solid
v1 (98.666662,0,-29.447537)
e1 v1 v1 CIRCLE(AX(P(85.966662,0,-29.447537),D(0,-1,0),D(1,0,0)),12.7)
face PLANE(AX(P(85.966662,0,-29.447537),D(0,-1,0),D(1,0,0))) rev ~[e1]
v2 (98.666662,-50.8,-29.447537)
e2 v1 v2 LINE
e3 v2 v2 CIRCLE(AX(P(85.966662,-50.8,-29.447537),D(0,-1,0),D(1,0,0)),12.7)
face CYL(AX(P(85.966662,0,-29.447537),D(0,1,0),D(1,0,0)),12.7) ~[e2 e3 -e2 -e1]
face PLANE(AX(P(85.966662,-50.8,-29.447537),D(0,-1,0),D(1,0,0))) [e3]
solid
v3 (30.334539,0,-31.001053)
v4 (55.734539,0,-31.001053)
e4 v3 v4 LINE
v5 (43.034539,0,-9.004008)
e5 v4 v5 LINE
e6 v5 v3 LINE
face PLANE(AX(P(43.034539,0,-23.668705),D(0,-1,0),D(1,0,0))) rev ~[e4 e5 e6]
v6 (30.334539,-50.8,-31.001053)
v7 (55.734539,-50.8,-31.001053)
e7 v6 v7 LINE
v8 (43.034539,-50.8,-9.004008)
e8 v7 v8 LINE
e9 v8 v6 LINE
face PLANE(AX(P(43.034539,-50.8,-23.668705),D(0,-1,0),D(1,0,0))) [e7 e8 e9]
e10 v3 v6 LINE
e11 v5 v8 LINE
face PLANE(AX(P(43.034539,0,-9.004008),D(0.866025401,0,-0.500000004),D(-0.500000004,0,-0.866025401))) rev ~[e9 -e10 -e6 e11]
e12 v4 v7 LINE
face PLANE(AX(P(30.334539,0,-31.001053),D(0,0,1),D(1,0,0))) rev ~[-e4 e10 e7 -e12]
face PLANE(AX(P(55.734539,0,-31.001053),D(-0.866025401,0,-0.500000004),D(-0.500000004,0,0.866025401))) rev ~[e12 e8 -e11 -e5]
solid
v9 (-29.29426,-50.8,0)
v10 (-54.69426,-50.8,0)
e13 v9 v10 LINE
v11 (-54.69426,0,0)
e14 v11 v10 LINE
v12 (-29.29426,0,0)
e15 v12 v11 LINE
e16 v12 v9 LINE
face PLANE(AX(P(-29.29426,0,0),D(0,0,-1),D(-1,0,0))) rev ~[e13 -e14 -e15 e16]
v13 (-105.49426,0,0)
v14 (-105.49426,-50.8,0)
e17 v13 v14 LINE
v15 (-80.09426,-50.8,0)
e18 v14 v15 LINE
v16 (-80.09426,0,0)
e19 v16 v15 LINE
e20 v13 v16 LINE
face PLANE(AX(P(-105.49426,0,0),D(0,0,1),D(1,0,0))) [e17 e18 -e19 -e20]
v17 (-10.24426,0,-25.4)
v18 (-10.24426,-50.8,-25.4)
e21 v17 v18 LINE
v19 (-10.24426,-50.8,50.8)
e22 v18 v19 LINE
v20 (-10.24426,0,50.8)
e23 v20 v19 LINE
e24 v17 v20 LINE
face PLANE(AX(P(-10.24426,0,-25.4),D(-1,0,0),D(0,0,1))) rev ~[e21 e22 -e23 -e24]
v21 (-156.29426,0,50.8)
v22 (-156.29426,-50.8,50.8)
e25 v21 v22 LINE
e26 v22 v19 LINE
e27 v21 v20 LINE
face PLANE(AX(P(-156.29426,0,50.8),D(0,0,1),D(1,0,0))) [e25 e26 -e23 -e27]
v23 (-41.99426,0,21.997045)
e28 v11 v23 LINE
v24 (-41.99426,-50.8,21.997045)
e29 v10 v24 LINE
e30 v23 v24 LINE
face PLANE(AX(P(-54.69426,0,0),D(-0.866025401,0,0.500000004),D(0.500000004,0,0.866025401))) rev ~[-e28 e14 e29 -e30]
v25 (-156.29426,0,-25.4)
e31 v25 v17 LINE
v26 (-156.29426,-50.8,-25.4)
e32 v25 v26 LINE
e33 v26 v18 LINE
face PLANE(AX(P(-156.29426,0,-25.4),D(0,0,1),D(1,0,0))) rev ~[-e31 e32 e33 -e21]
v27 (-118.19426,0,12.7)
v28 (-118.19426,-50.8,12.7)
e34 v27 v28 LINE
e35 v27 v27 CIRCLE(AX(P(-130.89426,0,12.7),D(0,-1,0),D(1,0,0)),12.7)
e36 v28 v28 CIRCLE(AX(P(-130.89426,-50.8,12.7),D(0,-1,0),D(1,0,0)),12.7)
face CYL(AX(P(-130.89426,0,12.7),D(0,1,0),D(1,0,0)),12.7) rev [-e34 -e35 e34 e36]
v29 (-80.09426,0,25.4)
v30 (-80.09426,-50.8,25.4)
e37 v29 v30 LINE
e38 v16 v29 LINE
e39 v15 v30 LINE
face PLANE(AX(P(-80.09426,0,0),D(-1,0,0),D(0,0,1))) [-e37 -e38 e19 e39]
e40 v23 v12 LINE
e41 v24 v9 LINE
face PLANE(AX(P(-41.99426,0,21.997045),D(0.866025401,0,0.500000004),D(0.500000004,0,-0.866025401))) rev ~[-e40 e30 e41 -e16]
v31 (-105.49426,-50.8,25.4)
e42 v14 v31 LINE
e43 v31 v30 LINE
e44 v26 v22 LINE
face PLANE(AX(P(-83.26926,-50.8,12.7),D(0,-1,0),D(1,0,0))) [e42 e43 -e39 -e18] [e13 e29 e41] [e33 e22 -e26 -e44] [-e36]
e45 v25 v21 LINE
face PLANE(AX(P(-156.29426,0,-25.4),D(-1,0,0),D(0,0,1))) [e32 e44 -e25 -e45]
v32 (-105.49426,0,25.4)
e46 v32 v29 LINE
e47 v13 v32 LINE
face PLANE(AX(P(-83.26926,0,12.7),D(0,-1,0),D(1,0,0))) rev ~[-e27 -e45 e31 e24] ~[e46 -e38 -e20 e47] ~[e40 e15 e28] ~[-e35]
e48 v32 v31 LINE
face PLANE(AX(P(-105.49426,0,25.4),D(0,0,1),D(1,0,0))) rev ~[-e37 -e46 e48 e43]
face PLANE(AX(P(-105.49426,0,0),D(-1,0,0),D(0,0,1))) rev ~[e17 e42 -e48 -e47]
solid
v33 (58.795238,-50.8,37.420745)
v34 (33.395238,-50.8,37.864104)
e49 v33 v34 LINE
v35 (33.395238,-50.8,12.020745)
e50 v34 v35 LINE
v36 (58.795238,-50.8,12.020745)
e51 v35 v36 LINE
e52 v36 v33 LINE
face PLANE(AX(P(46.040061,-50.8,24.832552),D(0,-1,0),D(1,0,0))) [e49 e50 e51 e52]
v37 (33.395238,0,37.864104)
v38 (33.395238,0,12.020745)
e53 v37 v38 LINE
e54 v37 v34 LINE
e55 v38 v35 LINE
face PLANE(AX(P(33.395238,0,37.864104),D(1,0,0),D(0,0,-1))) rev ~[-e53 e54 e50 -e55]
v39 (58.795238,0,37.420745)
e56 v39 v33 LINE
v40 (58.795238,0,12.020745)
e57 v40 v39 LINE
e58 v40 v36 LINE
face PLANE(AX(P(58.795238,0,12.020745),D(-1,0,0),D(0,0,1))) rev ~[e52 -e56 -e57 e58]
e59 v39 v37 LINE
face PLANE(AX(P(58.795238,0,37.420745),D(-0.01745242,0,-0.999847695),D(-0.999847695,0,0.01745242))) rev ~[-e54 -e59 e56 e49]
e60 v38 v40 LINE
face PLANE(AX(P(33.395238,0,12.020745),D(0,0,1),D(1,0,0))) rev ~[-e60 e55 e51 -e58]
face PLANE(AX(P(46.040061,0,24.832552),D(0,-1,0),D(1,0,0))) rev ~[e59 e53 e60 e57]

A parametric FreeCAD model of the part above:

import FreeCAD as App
import Part
import Sketcher
from FreeCAD import Vector
Q = App.Units.Quantity

doc = App.newDocument("Part")
body = doc.addObject("PartDesign::Body", "Body")
body.AllowCompound = True

sketch1 = body.newObject("Sketcher::SketchObject", "Sketch")
sketch1.AttachmentSupport = (doc.getObject("XZ_Plane"), [""])
sketch1.MapMode = "FlatFace"
sketch1.addGeometry([
    Part.LineSegment(Vector(-156, 51, 0), Vector(-156, -25, 0)),
    Part.LineSegment(Vector(-156, -25, 0), Vector(-10, -25, 0)),
    Part.LineSegment(Vector(-10, -25, 0), Vector(-10, 51, 0)),
    Part.LineSegment(Vector(-10, 51, 0), Vector(-156, 51, 0)),
    Part.LineSegment(Vector(-29, 0, 0), Vector(-55, 0, 0)),
    Part.LineSegment(Vector(-55, 0, 0), Vector(-42, 22, 0)),
    Part.LineSegment(Vector(-42, 22, 0), Vector(-29, 0, 0)),
    Part.Circle(Vector(-131, 13, 0), Vector(0, 0, 1), 13),
    Part.LineSegment(Vector(-80, 0, 0), Vector(-105, 0, 0)),
    Part.LineSegment(Vector(-105, 0, 0), Vector(-105, 25, 0)),
    Part.LineSegment(Vector(-105, 25, 0), Vector(-80, 25, 0)),
    Part.LineSegment(Vector(-80, 25, 0), Vector(-80, 0, 0)),
    Part.LineSegment(Vector(59, 37, 0), Vector(33, 38, 0)),
    Part.LineSegment(Vector(33, 38, 0), Vector(33, 12, 0)),
    Part.LineSegment(Vector(33, 12, 0), Vector(59, 12, 0)),
    Part.LineSegment(Vector(59, 12, 0), Vector(59, 37, 0)),
    Part.LineSegment(Vector(56, -31, 0), Vector(43, -9, 0)),
    Part.LineSegment(Vector(43, -9, 0), Vector(30, -31, 0)),
    Part.LineSegment(Vector(30, -31, 0), Vector(56, -31, 0)),
    Part.Circle(Vector(86, -29, 0), Vector(0, 0, 1), 13),
], False)
sketch1.addConstraint([
    Sketcher.Constraint("Coincident", 0, 2, 1, 1),
    Sketcher.Constraint("Coincident", 1, 2, 2, 1),
    Sketcher.Constraint("Coincident", 2, 2, 3, 1),
    Sketcher.Constraint("Coincident", 3, 2, 0, 1),
    Sketcher.Constraint("Coincident", 4, 2, 5, 1),
    Sketcher.Constraint("Coincident", 5, 2, 6, 1),
    Sketcher.Constraint("Coincident", 6, 2, 4, 1),
    Sketcher.Constraint("Coincident", 8, 2, 9, 1),
    Sketcher.Constraint("Coincident", 9, 2, 10, 1),
    Sketcher.Constraint("Coincident", 10, 2, 11, 1),
    Sketcher.Constraint("Coincident", 11, 2, 8, 1),
    Sketcher.Constraint("Coincident", 12, 2, 13, 1),
    Sketcher.Constraint("Coincident", 13, 2, 14, 1),
    Sketcher.Constraint("Coincident", 14, 2, 15, 1),
    Sketcher.Constraint("Coincident", 15, 2, 12, 1),
    Sketcher.Constraint("Coincident", 16, 2, 17, 1),
    Sketcher.Constraint("Coincident", 17, 2, 18, 1),
    Sketcher.Constraint("Coincident", 18, 2, 16, 1),
    Sketcher.Constraint("Vertical", 0),
    Sketcher.Constraint("Horizontal", 1),
    Sketcher.Constraint("Vertical", 2),
    Sketcher.Constraint("Horizontal", 3),
    Sketcher.Constraint("Horizontal", 4),
    Sketcher.Constraint("Horizontal", 8),
    Sketcher.Constraint("Vertical", 9),
    Sketcher.Constraint("Horizontal", 10),
    Sketcher.Constraint("Vertical", 11),
    Sketcher.Constraint("Vertical", 13),
    Sketcher.Constraint("Horizontal", 14),
    Sketcher.Constraint("Vertical", 15),
    Sketcher.Constraint("Horizontal", 18),
    Sketcher.Constraint("Equal", 7, 19),
    Sketcher.Constraint("PointOnObject", 4, 2, -1),
    Sketcher.Constraint("PointOnObject", 8, 2, -1),
    Sketcher.Constraint("Parallel", 6, 16),
    Sketcher.Constraint("Parallel", 5, 17),
    Sketcher.Constraint("Equal", 4, 8),
    Sketcher.Constraint("Equal", 10, 14),
    Sketcher.Constraint("Equal", 14, 18),
    Sketcher.Constraint("Equal", 18, 9),
    Sketcher.Constraint("Equal", 11, 15),
    Sketcher.Constraint("Equal", 5, 6),
    Sketcher.Constraint("Diameter", 7, Q("1 in")),
    Sketcher.Constraint("DistanceX", 4, 2, 4, 1, Q("1 in")),
    Sketcher.Constraint("DistanceY", 0, 2, 0, 1, Q("3 in")),
    Sketcher.Constraint("Distance", 5, Q("1 in")),
    Sketcher.Constraint("DistanceY", 0, 2, -1, 1, Q("1 in")),
    Sketcher.Constraint("Angle", 12, Q("178.999999 deg")),
    Sketcher.Constraint("DistanceX", 0, 2, 7, 3, Q("1 in")),
    Sketcher.Constraint("DistanceX", 7, 3, 4, 2, Q("3 in")),
    Sketcher.Constraint("DistanceX", 7, 3, 8, 2, Q("1 in")),
    Sketcher.Constraint("DistanceX", 1, 1, 1, 2, Q("5.75 in")),
    Sketcher.Constraint("DistanceY", -1, 1, 7, 3, Q("0.5 in")),
    Sketcher.Constraint("DistanceX", 13, 2, 16, 2, Q("0.3795 in")),
    Sketcher.Constraint("DistanceX", 2, 2, 12, 2, Q("43.639498 mm")),
    Sketcher.Constraint("DistanceX", 7, 3, -1, 1, Q("130.89426 mm")),
    Sketcher.Constraint("DistanceX", -1, 1, 19, 3, Q("85.966662 mm")),
    Sketcher.Constraint("DistanceY", 16, 2, -1, 1, Q("9.004008 mm")),
    Sketcher.Constraint("DistanceY", 5, 2, 12, 2, Q("15.867059 mm")),
    Sketcher.Constraint("DistanceY", 19, 3, 12, 2, Q("67.311641 mm")),
])
pad1 = body.newObject("PartDesign::Pad", "Pad")
pad1.Profile = sketch1
pad1.Length = Q("2 in")

doc.recompute()
